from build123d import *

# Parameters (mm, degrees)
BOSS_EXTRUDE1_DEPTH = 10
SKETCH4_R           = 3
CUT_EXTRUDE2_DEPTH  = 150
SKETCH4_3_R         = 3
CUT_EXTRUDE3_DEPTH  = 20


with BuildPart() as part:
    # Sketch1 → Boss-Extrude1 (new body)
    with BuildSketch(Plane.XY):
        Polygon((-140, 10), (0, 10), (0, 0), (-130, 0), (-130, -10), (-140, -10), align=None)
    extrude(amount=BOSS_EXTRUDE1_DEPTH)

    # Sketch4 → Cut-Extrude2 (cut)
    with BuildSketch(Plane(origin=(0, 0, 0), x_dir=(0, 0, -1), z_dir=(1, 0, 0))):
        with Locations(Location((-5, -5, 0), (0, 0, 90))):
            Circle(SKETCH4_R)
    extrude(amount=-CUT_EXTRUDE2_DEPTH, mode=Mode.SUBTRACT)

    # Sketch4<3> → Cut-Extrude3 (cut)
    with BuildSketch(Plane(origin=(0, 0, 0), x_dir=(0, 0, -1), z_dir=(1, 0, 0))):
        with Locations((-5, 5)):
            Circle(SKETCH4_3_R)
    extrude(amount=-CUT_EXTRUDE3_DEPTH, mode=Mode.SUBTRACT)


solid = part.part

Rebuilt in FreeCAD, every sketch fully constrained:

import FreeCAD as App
import Part
import Sketcher


def add_polygon(sketch, points):
    """Adds a closed chain of lines whose ends are joined by coincident constraints."""
    first, n = sketch.GeometryCount, len(points)
    for a, b in zip(points, points[1:] + points[:1]):
        sketch.addGeometry(Part.LineSegment(App.Vector(*a, 0), App.Vector(*b, 0)), False)
    for i in range(n):
        sketch.addConstraint(Sketcher.Constraint("Coincident", first + i, 2, first + (i + 1) % n, 1))

doc = App.newDocument("Part")
body = doc.addObject("PartDesign::Body", "Body")

# Sketch on XY plane
sketch1 = body.newObject("Sketcher::SketchObject", "Sketch")
sketch1.AttachmentSupport = (doc.getObject("XY_Plane"), [""])
sketch1.MapMode = "FlatFace"
add_polygon(sketch1, [(0, 10), (-140, 10), (-140, -10), (-130, -10), (-130, 0), (0, 0)])  # lines 0-5
sketch1.addConstraint([
    Sketcher.Constraint("Horizontal", 0),
    Sketcher.Constraint("Vertical", 1),
    Sketcher.Constraint("Horizontal", 2),
    Sketcher.Constraint("Vertical", 3),
    Sketcher.Constraint("Horizontal", 4),
    Sketcher.Constraint("Vertical", 5),
    Sketcher.Constraint("Coincident", 4, 2, -1, 1),
    Sketcher.Constraint("Equal", 2, 3),
    Sketcher.Constraint("Equal", 3, 5),
    Sketcher.Constraint("DistanceX", 0, 2, 0, 1, 140.0),
    Sketcher.Constraint("DistanceX", 2, 1, 2, 2, 10.0),
])
pad1 = body.newObject("PartDesign::Pad", "Pad")
pad1.Profile = sketch1
pad1.Length = 10

# Sketch on YZ plane
sketch2 = body.newObject("Sketcher::SketchObject", "Sketch001")
sketch2.AttachmentSupport = (doc.getObject("YZ_Plane"), [""])
sketch2.MapMode = "FlatFace"
sketch2.addGeometry(Part.Circle(App.Vector(-5, 5, 0), App.Vector(0, 0, 1), 3), False)
sketch2.addConstraint([
    Sketcher.Constraint("Diameter", 0, 6.0),
    Sketcher.Constraint("DistanceX", 0, 3, -1, 1, 5.0),
    Sketcher.Constraint("DistanceY", -1, 1, 0, 3, 5.0),
])
pocket1 = body.newObject("PartDesign::Pocket", "Pocket")
pocket1.Profile = sketch2
pocket1.Length = 150

# Sketch on YZ plane
sketch3 = body.newObject("Sketcher::SketchObject", "Sketch002")
sketch3.AttachmentSupport = (doc.getObject("YZ_Plane"), [""])
sketch3.MapMode = "FlatFace"
sketch3.addGeometry(Part.Circle(App.Vector(5, 5, 0), App.Vector(0, 0, 1), 3), False)
sketch3.addConstraint([
    Sketcher.Constraint("Diameter", 0, 6.0),
    Sketcher.Constraint("DistanceX", -1, 1, 0, 3, 5.0),
    Sketcher.Constraint("DistanceY", -1, 1, 0, 3, 5.0),
])
pocket2 = body.newObject("PartDesign::Pocket", "Pocket001")
pocket2.Profile = sketch3
pocket2.Length = 20

doc.recompute()
